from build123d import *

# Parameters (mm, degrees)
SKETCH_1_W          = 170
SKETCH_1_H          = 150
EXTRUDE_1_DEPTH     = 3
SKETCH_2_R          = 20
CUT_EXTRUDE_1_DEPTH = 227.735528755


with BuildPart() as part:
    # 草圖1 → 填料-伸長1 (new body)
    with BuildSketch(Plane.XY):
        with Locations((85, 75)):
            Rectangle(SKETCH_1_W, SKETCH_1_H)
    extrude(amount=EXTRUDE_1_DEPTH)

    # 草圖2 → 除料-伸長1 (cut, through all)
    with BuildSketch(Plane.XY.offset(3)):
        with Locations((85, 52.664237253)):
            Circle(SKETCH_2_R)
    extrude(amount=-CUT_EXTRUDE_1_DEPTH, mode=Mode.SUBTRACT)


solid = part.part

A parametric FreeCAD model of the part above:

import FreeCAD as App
import Part
import Sketcher
from FreeCAD import Vector


def add_polygon(sketch, points):
    """Adds a closed chain of lines whose ends are joined by coincident constraints."""
    first, n = sketch.GeometryCount, len(points)
    for a, b in zip(points, points[1:] + points[:1]):
        sketch.addGeometry(Part.LineSegment(App.Vector(*a, 0), App.Vector(*b, 0)), False)
    for i in range(n):
        sketch.addConstraint(Sketcher.Constraint("Coincident", first + i, 2, first + (i + 1) % n, 1))

doc = App.newDocument("Part")
body = doc.addObject("PartDesign::Body", "Body")

sketch1 = doc.addObject("Sketcher::SketchObject", "Sketch")
body.addObject(sketch1)
sketch1.AttachmentSupport = (doc.XY_Plane, [""])
sketch1.MapMode = "FlatFace"
add_polygon(sketch1, [(0, 150), (0, 0), (170, 0), (170, 150)])
sketch1.addConstraint([
    Sketcher.Constraint("Vertical", 0),
    Sketcher.Constraint("Horizontal", 1),
    Sketcher.Constraint("Vertical", 2),
    Sketcher.Constraint("Horizontal", 3),
    Sketcher.Constraint("Coincident", 0, 2, -1, 1),
    Sketcher.Constraint("DistanceX", 1, 1, 1, 2, 170.0),
    Sketcher.Constraint("DistanceY", 0, 2, 0, 1, 150.0),
])
pad1 = doc.addObject("PartDesign::Pad", "Pad")
body.addObject(pad1)
pad1.Profile = sketch1
pad1.Length = 3

sketch2 = doc.addObject("Sketcher::SketchObject", "Sketch001")
body.addObject(sketch2)
sketch2.AttachmentSupport = (doc.XY_Plane, [""])
sketch2.MapMode = "FlatFace"
sketch2.AttachmentOffset = App.Placement(Vector(0, 0, 3), App.Rotation())
sketch2.addGeometry(Part.Circle(Vector(85, 53, 0), Vector(0, 0, 1), 20), False)
sketch2.addConstraint([
    Sketcher.Constraint("Diameter", 0, 40.0),
    Sketcher.Constraint("DistanceX", -1, 1, 0, 3, 85.0),
    Sketcher.Constraint("DistanceY", -1, 1, 0, 3, 52.664237),
])
pocket1 = doc.addObject("PartDesign::Pocket", "Pocket")
body.addObject(pocket1)
pocket1.Profile = sketch2
pocket1.Type = "ThroughAll"

doc.recompute()
